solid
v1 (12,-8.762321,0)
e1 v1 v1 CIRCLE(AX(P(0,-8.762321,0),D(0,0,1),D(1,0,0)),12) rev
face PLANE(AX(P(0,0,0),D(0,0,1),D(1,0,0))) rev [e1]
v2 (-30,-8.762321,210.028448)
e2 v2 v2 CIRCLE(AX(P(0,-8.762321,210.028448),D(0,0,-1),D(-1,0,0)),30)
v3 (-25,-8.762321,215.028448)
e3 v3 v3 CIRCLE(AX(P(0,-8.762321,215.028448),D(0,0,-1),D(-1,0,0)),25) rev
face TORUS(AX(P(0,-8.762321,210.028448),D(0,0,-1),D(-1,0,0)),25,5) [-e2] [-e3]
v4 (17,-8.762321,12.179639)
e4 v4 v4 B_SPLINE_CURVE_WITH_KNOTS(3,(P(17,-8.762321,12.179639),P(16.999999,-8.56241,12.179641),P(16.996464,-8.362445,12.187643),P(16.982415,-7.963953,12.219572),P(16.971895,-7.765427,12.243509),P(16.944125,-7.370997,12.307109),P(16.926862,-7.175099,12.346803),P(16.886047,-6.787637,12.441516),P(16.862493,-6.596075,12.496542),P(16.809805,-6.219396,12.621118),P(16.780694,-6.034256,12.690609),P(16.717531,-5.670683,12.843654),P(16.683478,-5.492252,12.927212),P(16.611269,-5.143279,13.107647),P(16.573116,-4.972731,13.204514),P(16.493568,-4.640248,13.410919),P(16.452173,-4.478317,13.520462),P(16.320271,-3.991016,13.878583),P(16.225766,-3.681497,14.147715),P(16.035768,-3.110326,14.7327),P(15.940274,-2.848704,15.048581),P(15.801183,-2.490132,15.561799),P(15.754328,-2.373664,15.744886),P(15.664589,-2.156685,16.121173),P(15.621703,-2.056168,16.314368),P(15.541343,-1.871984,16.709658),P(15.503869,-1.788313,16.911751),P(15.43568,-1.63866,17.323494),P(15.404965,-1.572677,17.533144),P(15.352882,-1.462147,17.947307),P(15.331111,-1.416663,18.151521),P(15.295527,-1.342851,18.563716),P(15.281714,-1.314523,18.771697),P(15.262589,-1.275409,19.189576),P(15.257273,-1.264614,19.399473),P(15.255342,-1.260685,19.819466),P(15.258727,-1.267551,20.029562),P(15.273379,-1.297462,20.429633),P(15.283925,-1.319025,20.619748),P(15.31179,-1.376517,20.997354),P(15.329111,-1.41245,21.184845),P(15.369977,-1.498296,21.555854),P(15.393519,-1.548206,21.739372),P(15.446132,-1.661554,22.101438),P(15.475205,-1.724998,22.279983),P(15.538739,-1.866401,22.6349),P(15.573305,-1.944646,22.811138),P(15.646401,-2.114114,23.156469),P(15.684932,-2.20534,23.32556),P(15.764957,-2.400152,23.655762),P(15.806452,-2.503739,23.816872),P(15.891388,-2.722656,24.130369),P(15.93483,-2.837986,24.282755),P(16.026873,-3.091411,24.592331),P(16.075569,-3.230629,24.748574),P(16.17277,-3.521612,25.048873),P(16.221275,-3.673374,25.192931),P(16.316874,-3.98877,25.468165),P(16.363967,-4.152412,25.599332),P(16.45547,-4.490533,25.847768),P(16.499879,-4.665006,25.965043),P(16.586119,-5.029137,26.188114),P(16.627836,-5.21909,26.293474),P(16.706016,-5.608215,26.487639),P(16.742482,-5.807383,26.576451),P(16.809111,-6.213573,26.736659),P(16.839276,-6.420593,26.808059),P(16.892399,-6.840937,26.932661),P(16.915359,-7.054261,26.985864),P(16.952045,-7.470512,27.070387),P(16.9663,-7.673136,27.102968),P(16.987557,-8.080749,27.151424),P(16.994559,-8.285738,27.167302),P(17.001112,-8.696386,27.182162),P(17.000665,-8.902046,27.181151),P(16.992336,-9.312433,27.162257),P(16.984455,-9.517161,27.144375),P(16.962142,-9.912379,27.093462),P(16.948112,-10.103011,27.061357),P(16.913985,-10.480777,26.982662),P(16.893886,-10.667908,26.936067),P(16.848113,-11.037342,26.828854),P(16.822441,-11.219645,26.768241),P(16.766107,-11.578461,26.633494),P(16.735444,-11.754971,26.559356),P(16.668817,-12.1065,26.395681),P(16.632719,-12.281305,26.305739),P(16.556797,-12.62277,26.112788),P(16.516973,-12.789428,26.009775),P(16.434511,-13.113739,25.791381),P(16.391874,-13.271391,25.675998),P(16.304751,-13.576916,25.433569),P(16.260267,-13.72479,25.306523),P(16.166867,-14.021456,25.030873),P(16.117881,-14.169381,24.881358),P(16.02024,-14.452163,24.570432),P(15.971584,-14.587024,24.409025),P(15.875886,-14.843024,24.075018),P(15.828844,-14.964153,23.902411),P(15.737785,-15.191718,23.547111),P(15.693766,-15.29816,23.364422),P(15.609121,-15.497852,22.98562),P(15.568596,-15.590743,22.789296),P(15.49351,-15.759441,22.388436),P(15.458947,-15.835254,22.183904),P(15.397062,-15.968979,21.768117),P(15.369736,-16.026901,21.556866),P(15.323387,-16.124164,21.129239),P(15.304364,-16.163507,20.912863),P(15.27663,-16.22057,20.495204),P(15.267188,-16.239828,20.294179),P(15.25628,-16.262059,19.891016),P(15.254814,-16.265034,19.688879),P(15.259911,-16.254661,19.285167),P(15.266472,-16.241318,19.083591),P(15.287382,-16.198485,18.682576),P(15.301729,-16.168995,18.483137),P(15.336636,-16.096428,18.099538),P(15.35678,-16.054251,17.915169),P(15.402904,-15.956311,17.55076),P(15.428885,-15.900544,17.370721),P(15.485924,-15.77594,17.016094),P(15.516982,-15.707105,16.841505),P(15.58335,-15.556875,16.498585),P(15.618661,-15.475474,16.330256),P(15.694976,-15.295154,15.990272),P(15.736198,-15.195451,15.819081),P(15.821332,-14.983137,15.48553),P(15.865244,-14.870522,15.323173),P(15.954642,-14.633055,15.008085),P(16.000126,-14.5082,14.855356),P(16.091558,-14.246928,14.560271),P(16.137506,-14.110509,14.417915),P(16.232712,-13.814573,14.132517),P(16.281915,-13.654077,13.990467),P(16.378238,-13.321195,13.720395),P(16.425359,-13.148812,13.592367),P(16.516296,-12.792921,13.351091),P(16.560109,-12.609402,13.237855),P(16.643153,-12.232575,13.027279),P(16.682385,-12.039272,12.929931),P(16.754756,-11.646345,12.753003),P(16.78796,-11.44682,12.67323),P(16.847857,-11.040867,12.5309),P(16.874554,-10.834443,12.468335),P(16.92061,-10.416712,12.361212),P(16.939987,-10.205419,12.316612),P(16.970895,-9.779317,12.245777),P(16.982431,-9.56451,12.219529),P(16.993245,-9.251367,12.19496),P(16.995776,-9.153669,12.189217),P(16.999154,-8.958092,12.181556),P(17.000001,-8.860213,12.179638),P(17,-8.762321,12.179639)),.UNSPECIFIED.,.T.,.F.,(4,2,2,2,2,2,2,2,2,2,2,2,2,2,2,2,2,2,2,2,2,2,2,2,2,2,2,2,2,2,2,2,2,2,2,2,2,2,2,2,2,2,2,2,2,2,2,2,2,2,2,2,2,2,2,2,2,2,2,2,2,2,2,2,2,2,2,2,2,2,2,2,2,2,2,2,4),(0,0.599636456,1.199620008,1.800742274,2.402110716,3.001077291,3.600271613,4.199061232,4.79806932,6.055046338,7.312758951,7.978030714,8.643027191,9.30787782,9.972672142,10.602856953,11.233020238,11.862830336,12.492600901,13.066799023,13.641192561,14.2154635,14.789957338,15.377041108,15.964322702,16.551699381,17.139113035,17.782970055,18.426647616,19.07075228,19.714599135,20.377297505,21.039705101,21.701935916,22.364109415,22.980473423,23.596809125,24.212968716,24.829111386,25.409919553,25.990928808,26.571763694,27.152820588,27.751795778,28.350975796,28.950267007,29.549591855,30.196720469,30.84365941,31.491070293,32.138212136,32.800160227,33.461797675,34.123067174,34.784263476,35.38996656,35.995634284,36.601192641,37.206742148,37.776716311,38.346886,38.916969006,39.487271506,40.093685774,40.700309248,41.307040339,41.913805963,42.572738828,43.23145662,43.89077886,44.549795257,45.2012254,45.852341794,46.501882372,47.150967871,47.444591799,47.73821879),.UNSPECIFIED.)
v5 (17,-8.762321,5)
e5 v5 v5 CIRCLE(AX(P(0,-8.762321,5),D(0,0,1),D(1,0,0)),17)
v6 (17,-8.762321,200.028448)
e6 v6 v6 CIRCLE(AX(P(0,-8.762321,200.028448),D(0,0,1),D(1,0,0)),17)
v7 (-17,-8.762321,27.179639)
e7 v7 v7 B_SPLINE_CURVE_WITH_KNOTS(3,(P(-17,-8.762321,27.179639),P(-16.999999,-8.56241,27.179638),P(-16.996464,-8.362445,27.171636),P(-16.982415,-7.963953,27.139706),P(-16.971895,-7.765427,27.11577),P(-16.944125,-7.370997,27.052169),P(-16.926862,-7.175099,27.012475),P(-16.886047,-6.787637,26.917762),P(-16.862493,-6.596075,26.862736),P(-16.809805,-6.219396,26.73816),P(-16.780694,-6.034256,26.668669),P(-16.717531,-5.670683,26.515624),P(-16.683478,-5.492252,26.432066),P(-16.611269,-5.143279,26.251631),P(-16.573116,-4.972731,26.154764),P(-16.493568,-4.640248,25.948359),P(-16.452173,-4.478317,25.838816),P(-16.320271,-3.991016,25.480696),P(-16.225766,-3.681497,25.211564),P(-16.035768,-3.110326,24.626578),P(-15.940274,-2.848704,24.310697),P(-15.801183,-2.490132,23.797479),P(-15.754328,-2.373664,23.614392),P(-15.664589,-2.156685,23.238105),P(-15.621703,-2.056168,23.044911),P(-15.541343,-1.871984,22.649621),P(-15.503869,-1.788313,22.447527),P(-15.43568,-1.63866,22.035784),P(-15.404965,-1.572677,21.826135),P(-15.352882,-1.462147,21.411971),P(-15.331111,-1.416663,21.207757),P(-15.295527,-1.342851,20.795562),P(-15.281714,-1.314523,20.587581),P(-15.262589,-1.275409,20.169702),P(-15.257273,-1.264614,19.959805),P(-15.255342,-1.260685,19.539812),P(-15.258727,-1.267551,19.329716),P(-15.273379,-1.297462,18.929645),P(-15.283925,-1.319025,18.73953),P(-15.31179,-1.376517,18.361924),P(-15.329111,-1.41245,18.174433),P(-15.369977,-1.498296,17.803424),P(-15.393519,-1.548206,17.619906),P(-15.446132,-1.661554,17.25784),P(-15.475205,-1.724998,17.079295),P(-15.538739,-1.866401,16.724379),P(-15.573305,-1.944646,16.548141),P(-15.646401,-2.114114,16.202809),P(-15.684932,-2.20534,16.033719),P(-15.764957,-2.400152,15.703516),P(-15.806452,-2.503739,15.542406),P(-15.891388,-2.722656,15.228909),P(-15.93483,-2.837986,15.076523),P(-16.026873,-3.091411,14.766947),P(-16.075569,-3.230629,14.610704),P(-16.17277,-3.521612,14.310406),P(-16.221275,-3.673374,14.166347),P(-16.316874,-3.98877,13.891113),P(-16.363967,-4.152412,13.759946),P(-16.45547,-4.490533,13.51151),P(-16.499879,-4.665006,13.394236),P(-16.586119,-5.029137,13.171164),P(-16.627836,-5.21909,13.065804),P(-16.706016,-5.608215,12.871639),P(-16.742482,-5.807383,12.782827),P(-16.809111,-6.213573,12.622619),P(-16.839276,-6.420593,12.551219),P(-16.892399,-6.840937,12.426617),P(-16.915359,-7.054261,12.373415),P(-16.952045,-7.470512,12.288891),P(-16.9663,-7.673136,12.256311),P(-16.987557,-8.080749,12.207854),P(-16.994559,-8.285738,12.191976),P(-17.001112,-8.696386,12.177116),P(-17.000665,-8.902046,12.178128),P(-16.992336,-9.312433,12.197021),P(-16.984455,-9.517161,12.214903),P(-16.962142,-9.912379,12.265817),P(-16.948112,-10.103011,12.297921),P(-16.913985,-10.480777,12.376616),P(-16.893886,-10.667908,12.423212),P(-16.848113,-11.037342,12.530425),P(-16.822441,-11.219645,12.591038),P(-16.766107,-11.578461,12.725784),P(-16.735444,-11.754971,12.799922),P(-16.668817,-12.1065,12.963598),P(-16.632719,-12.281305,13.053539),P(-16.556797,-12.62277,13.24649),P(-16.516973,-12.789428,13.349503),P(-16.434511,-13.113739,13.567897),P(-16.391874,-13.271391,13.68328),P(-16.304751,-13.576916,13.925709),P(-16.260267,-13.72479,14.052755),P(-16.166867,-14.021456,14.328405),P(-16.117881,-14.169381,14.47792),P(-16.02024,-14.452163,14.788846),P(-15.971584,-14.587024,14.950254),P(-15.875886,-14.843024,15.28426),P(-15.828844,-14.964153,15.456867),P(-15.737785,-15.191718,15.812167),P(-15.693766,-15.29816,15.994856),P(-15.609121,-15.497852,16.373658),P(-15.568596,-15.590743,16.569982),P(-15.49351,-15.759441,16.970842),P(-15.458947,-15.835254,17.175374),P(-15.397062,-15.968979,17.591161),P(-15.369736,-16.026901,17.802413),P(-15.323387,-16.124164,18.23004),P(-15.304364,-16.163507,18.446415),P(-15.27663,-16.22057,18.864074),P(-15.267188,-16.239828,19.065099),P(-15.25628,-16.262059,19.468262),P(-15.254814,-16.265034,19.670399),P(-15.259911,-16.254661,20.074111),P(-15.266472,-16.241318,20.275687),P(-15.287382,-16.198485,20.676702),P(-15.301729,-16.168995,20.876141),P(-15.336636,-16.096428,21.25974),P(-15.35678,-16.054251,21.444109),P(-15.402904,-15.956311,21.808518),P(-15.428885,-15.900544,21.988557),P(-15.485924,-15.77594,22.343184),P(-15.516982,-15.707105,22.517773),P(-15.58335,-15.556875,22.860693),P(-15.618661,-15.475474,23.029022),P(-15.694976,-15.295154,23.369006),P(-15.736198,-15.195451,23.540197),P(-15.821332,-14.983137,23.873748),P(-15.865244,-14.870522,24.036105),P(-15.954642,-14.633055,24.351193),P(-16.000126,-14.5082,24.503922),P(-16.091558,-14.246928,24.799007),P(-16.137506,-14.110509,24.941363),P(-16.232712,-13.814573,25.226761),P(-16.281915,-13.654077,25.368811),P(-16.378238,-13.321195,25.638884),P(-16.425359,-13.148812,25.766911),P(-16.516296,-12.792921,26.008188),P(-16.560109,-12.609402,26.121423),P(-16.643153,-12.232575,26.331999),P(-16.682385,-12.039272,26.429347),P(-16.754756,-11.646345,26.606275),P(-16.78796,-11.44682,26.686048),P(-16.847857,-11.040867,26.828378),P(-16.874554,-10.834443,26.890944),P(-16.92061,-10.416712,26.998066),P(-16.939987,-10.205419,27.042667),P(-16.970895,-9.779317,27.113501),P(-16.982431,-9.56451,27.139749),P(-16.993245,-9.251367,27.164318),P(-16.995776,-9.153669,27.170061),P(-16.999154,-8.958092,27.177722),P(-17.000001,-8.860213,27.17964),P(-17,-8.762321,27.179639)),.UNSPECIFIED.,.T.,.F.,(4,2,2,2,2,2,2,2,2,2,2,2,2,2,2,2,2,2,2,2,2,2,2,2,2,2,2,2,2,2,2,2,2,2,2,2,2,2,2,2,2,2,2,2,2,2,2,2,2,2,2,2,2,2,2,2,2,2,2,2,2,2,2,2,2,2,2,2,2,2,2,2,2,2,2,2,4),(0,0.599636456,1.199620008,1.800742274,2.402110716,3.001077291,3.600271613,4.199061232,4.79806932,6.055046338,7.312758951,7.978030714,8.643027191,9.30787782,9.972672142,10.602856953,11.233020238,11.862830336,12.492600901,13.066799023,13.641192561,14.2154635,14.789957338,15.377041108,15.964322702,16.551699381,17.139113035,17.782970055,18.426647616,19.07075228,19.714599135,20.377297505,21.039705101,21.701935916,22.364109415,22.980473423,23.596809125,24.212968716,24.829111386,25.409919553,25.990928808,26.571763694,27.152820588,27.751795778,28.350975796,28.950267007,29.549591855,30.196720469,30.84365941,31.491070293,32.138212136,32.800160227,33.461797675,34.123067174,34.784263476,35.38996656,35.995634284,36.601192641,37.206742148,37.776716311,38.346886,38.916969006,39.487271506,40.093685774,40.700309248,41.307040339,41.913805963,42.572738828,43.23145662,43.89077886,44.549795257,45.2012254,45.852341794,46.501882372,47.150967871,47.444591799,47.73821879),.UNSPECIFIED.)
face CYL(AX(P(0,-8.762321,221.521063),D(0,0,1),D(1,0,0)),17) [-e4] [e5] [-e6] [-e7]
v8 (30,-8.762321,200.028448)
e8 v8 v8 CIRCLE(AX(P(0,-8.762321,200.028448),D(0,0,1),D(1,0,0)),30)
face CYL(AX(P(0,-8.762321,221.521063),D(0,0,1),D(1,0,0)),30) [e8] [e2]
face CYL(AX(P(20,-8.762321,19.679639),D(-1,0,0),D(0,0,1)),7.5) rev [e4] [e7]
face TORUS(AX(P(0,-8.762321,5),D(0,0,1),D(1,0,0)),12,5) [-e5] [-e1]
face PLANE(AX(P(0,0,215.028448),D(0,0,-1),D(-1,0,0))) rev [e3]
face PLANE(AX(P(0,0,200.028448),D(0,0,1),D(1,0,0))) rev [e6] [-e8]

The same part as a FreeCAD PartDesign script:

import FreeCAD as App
import Part
import Sketcher

V = App.Vector


def edges_at(feature, points):
    """Names of the edges that pass closest to the given points."""
    edges = feature.Shape.Edges
    near = lambda p: min(range(len(edges)), key=lambda i: edges[i].distToShape(Part.Vertex(*p))[0])
    return sorted({f"Edge{near(p) + 1}" for p in points})

doc = App.newDocument("Part")
body = doc.addObject("PartDesign::Body", "Body")

# Sketch on YZ plane
sketch1 = doc.addObject("Sketcher::SketchObject", "Sketch")
body.addObject(sketch1)
sketch1.AttachmentSupport = (doc.YZ_Plane, [""])
sketch1.MapMode = "FlatFace"
sketch1.addGeometry(Part.LineSegment(V(-9, 215, 0), V(-9, 0, 0)), False)
sketch1.addGeometry(Part.LineSegment(V(-9, 0, 0), V(8, 0, 0)), False)
sketch1.addGeometry(Part.LineSegment(V(8, 0, 0), V(8, 200, 0)), False)
sketch1.addGeometry(Part.LineSegment(V(8, 200, 0), V(21, 200, 0)), False)
sketch1.addGeometry(Part.LineSegment(V(21, 200, 0), V(21, 215, 0)), False)
sketch1.addGeometry(Part.LineSegment(V(21, 215, 0), V(-9, 215, 0)), False)
sketch1.addGeometry(Part.LineSegment(V(-9, 215, 0), V(-9, 0, 0)), True)  # axis
sketch1.addConstraint(Sketcher.Constraint("Coincident", 0, 2, 1, 1))
sketch1.addConstraint(Sketcher.Constraint("Coincident", 1, 2, 2, 1))
sketch1.addConstraint(Sketcher.Constraint("Coincident", 2, 2, 3, 1))
sketch1.addConstraint(Sketcher.Constraint("Coincident", 3, 2, 4, 1))
sketch1.addConstraint(Sketcher.Constraint("Coincident", 4, 2, 5, 1))
sketch1.addConstraint(Sketcher.Constraint("Coincident", 5, 2, 0, 1))
sketch1.addConstraint(Sketcher.Constraint("Vertical", 0))
sketch1.addConstraint(Sketcher.Constraint("Horizontal", 1))
sketch1.addConstraint(Sketcher.Constraint("Vertical", 2))
sketch1.addConstraint(Sketcher.Constraint("Horizontal", 3))
sketch1.addConstraint(Sketcher.Constraint("Vertical", 4))
sketch1.addConstraint(Sketcher.Constraint("Horizontal", 5))
sketch1.addConstraint(Sketcher.Constraint("Vertical", 6))
sketch1.addConstraint(Sketcher.Constraint("Coincident", 6, 1, 5, 2))
sketch1.addConstraint(Sketcher.Constraint("PointOnObject", 0, 2, -1))
sketch1.addConstraint(Sketcher.Constraint("PointOnObject", 6, 2, -1))
sketch1.addConstraint(Sketcher.Constraint("DistanceX", 1, 1, 1, 2, 17.0))
sketch1.addConstraint(Sketcher.Constraint("DistanceX", 3, 1, 3, 2, 13.0))
sketch1.addConstraint(Sketcher.Constraint("DistanceY", 4, 1, 4, 2, 15.0))
sketch1.addConstraint(Sketcher.Constraint("DistanceY", 0, 2, 0, 1, 215.028448))
sketch1.addConstraint(Sketcher.Constraint("DistanceX", 0, 2, -1, 1, 8.762321))
revolution = doc.addObject("PartDesign::Revolution", "Revolution")
body.addObject(revolution)
revolution.Profile = sketch1
revolution.ReferenceAxis = (sketch1, ["Axis0"])
revolution.Angle = 360
doc.recompute()

fillet = doc.addObject("PartDesign::Fillet", "Fillet")
body.addObject(fillet)
fillet.Base = (revolution, edges_at(revolution, [(-17, -8.762, 0)]))
fillet.Radius = 5
doc.recompute()

fillet2 = doc.addObject("PartDesign::Fillet", "Fillet001")
body.addObject(fillet2)
fillet2.Base = (fillet, edges_at(fillet, [(-30, -8.762, 215.028)]))
fillet2.Radius = 5

# Sketch on YZ plane
sketch2 = doc.addObject("Sketcher::SketchObject", "Sketch001")
body.addObject(sketch2)
sketch2.AttachmentSupport = (doc.YZ_Plane, [""])
sketch2.MapMode = "FlatFace"
sketch2.addGeometry(Part.Circle(V(-9, 20, 0), V(0, 0, 1), 8), False)
sketch2.addConstraint(Sketcher.Constraint("Diameter", 0, 15.0))
sketch2.addConstraint(Sketcher.Constraint("DistanceX", 0, 3, -1, 1, 8.762321))
sketch2.addConstraint(Sketcher.Constraint("DistanceY", -1, 1, 0, 3, 19.679639))
pocket1 = doc.addObject("PartDesign::Pocket", "Pocket")
body.addObject(pocket1)
pocket1.Profile = sketch2
pocket1.Type = "ThroughAll"
pocket1.Midplane = True

doc.recompute()
